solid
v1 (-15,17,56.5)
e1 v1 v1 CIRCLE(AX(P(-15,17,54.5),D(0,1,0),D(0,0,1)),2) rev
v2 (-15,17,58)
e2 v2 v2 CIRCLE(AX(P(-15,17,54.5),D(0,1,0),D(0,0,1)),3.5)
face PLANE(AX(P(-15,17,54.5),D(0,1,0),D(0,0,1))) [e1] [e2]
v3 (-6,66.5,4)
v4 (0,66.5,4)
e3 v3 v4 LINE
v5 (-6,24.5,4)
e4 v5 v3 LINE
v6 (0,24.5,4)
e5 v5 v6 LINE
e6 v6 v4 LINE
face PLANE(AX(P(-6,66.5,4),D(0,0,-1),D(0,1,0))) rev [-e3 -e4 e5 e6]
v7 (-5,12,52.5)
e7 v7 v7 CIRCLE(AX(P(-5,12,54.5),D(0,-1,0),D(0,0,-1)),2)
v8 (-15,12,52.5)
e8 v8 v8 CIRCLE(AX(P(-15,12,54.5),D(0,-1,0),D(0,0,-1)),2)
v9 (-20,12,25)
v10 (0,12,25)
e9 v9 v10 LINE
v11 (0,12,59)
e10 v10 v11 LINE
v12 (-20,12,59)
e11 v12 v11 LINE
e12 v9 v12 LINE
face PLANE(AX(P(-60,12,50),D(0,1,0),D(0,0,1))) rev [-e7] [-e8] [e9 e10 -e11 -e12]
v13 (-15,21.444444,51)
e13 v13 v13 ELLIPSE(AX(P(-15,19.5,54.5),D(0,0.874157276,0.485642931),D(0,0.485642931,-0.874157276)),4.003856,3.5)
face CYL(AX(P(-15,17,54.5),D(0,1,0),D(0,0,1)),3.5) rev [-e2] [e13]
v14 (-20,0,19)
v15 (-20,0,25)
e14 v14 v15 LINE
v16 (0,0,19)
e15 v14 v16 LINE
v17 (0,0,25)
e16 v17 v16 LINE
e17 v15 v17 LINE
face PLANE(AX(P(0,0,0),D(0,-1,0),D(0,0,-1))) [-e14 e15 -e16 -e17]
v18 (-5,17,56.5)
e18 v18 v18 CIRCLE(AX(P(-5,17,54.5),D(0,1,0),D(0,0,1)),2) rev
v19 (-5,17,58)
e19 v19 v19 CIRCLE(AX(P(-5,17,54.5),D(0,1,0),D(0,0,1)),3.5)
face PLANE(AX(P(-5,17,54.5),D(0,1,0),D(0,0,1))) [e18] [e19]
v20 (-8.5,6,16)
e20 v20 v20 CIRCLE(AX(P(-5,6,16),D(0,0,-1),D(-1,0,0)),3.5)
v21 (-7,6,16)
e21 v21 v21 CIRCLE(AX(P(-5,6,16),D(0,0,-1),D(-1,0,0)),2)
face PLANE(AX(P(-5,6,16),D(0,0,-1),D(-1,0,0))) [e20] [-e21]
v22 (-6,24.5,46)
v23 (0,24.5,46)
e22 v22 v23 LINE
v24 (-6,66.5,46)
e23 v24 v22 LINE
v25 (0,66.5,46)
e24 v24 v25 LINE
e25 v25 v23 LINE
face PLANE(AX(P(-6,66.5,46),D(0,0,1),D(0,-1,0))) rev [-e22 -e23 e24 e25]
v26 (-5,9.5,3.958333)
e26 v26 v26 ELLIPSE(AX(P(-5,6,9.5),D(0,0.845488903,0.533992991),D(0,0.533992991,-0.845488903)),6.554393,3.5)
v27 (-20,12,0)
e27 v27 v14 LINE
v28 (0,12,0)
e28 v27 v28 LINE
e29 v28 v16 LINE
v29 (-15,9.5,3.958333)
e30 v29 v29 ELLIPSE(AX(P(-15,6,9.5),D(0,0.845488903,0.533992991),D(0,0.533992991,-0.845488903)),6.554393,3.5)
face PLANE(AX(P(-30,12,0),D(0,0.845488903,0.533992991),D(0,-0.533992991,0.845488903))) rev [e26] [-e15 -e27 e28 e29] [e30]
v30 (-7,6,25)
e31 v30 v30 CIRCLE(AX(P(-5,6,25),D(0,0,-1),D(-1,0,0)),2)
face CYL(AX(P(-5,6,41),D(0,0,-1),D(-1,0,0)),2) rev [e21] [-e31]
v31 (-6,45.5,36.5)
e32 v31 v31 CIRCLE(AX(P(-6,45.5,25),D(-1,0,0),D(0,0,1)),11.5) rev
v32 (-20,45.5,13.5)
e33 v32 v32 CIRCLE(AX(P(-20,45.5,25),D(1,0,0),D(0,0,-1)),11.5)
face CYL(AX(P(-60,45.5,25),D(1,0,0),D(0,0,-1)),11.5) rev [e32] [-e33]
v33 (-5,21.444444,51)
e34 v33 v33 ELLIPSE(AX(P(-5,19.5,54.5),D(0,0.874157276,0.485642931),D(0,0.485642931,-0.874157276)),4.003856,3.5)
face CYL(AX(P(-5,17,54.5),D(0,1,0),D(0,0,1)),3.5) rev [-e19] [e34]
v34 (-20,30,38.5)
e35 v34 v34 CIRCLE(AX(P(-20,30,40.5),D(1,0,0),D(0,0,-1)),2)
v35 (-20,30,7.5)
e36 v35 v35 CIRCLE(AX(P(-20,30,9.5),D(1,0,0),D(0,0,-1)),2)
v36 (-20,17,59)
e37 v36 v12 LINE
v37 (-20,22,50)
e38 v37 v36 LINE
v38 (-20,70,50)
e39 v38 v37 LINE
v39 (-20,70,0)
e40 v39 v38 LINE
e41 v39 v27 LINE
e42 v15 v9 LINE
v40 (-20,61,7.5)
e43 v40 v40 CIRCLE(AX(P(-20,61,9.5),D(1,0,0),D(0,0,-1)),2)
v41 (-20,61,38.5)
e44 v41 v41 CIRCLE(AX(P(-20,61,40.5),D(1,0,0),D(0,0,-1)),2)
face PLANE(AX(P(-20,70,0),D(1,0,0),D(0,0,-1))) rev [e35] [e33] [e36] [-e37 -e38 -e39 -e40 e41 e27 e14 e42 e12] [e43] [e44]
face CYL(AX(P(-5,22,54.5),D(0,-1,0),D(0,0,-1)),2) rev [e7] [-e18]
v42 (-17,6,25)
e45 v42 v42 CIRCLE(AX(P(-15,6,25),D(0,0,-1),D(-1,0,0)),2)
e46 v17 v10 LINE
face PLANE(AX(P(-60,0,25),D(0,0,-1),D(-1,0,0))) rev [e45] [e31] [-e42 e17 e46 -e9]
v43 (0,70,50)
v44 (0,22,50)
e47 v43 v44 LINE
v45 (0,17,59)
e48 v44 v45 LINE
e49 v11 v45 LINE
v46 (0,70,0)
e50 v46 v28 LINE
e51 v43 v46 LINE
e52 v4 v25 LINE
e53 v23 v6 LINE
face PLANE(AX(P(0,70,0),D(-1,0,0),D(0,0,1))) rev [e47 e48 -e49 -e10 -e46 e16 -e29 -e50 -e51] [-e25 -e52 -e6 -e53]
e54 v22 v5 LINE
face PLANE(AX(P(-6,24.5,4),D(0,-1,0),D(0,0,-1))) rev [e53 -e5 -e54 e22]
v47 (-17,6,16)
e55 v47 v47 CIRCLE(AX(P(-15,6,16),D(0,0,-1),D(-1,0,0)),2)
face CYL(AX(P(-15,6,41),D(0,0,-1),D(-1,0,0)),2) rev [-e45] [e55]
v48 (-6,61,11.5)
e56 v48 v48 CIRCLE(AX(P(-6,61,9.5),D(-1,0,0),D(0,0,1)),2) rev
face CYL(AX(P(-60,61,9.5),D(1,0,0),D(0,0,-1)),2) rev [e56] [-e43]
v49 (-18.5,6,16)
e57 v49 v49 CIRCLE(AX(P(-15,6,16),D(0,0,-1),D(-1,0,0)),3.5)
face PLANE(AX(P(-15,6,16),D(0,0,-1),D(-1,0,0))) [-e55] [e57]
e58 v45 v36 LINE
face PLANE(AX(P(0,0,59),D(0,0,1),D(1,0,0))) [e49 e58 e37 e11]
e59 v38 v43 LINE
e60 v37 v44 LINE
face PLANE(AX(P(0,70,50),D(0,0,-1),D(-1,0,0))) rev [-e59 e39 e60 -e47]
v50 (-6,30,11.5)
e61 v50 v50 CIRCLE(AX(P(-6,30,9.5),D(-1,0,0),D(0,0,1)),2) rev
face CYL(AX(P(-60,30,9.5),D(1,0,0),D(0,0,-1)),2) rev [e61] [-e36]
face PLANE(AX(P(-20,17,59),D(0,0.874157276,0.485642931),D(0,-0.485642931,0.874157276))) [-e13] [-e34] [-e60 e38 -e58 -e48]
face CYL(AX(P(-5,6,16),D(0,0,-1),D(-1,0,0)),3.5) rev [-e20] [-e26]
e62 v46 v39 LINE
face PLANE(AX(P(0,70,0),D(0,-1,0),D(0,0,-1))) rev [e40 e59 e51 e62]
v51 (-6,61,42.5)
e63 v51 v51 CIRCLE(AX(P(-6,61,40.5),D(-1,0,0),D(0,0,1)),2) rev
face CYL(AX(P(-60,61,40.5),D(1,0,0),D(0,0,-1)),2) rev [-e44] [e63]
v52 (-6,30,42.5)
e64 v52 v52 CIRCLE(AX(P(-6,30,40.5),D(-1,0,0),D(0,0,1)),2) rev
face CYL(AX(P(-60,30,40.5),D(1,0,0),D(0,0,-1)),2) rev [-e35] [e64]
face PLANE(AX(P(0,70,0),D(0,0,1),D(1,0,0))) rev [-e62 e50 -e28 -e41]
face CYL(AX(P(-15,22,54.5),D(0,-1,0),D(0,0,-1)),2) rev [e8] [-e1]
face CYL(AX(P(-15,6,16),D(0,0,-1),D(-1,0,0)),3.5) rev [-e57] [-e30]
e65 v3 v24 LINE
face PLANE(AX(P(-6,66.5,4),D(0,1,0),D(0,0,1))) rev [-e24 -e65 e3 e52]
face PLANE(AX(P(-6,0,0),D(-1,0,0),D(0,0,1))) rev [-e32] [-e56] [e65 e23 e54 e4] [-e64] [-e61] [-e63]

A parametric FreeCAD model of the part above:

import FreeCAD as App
import Part
import Sketcher
from FreeCAD import Vector
Q = App.Units.Quantity


def add_polygon(sketch, points):
    """Adds a closed chain of lines whose ends are joined by coincident constraints."""
    first, n = sketch.GeometryCount, len(points)
    for a, b in zip(points, points[1:] + points[:1]):
        sketch.addGeometry(Part.LineSegment(App.Vector(*a, 0), App.Vector(*b, 0)), False)
    for i in range(n):
        sketch.addConstraint(Sketcher.Constraint("Coincident", first + i, 2, first + (i + 1) % n, 1))

doc = App.newDocument("Part")
params = doc.addObject("Spreadsheet::Sheet", "Params")
for row, (alias, value) in enumerate([
    ("sketch1_width", "20 mm"),
    ("sketch1_height", "50 mm"),
    ("pad1_length", "70 mm"),
    ("sketch2_diameter", "4 mm"),
    ("sketch2_diameter2", "23 mm"),
    ("pocket1_length", "60 mm"),
    ("sketch3_width", "12 mm"),
    ("sketch3_height", "25 mm"),
    ("pocket2_length", "60 mm"),
    ("sketch4_diameter", "4 mm"),
    ("pocket3_length", "15 mm"),
    ("sketch5_width", "42 mm"),
    ("pocket4_length", "6 mm"),
    ("sketch6_width", "12 mm"),
    ("sketch6_height", "19 mm"),
    ("pocket5_length", "30 mm"),
    ("sketch7_width", "20 mm"),
    ("sketch7_height", "5 mm"),
    ("pad2_length", "9 mm"),
    ("sketch8_width", "5 mm"),
    ("sketch8_height", "9 mm"),
    ("pad3_length", "20 mm"),
    ("sketch9_diameter", "4 mm"),
    ("pocket6_length", "10 mm"),
    ("sketch10_diameter", "7 mm"),
    ("pocket7_length", "53 mm"),
    ("sketch11_diameter", "7 mm"),
    ("pocket8_length", "16 mm"),
    ("sketch12_diameter", "4 mm"),
    ("pocket9_length", "25 mm"),
], start=1):
    params.set(f"A{row}", alias)
    params.set(f"B{row}", "=" + value)
    params.setAlias(f"B{row}", alias)

body = doc.addObject("PartDesign::Body", "Body")

# Sketch on XZ plane
sketch1 = body.newObject("Sketcher::SketchObject", "Sketch")
sketch1.AttachmentSupport = (doc.getObject("XZ_Plane"), [""])
sketch1.MapMode = "FlatFace"
add_polygon(sketch1, [(-20, 0), (-20, 50), (0, 50), (0, 0)])  # lines 0-3
sketch1.addConstraint(Sketcher.Constraint("Vertical", 0))
sketch1.addConstraint(Sketcher.Constraint("Horizontal", 1))
sketch1.addConstraint(Sketcher.Constraint("Vertical", 2))
sketch1.addConstraint(Sketcher.Constraint("Horizontal", 3))
sketch1.addConstraint(Sketcher.Constraint("Coincident", 2, 2, -1, 1))
sketch1.addConstraint(Sketcher.Constraint("DistanceX", 1, 1, 1, 2, Q("20 mm")))
sketch1.addConstraint(Sketcher.Constraint("DistanceY", 0, 1, 0, 2, Q("50 mm")))
sketch1.setExpression("Constraints[9]", "Params.sketch1_width")
sketch1.setExpression("Constraints[10]", "Params.sketch1_height")
pad1 = body.newObject("PartDesign::Pad", "Pad")
pad1.Profile = sketch1
pad1.setExpression("Length", "Params.pad1_length")
pad1.Reversed = True

# Sketch on YZ plane
sketch2 = body.newObject("Sketcher::SketchObject", "Sketch001")
sketch2.AttachmentSupport = (doc.getObject("YZ_Plane"), [""])
sketch2.MapMode = "FlatFace"
sketch2.addGeometry(Part.Circle(Vector(61, 9.5, 0), Vector(0, 0, 1), 2), False)
sketch2.addGeometry(Part.Circle(Vector(45.5, 25, 0), Vector(0, 0, 1), 11.5), False)
sketch2.addGeometry(Part.Circle(Vector(30, 9.5, 0), Vector(0, 0, 1), 2), False)
sketch2.addGeometry(Part.Circle(Vector(30, 40.5, 0), Vector(0, 0, 1), 2), False)
sketch2.addGeometry(Part.Circle(Vector(61, 40.5, 0), Vector(0, 0, 1), 2), False)
sketch2.addConstraint(Sketcher.Constraint("Equal", 0, 2))
sketch2.addConstraint(Sketcher.Constraint("Equal", 2, 3))
sketch2.addConstraint(Sketcher.Constraint("Equal", 3, 4))
sketch2.addConstraint(Sketcher.Constraint("Horizontal", 0, 3, 2, 3))
sketch2.addConstraint(Sketcher.Constraint("Horizontal", 3, 3, 4, 3))
sketch2.addConstraint(Sketcher.Constraint("Vertical", 2, 3, 3, 3))
sketch2.addConstraint(Sketcher.Constraint("Vertical", 0, 3, 4, 3))
sketch2.addConstraint(Sketcher.Constraint("Diameter", 0, Q("4 mm")))
sketch2.addConstraint(Sketcher.Constraint("Diameter", 1, Q("23 mm")))
sketch2.addConstraint(Sketcher.Constraint("DistanceX", -1, 1, 0, 3, Q("61 mm")))
sketch2.addConstraint(Sketcher.Constraint("DistanceY", -1, 1, 1, 3, Q("25 mm")))
sketch2.addConstraint(Sketcher.Constraint("DistanceX", -1, 1, 2, 3, Q("30 mm")))
sketch2.addConstraint(Sketcher.Constraint("DistanceY", 2, 3, 3, 3, Q("31 mm")))
sketch2.addConstraint(Sketcher.Constraint("DistanceY", -1, 1, 0, 3, Q("9.5 mm")))
sketch2.addConstraint(Sketcher.Constraint("DistanceX", -1, 1, 1, 3, Q("45.5 mm")))
sketch2.setExpression("Constraints[7]", "Params.sketch2_diameter")
sketch2.setExpression("Constraints[8]", "Params.sketch2_diameter2")
pocket1 = body.newObject("PartDesign::Pocket", "Pocket")
pocket1.Profile = sketch2
pocket1.setExpression("Length", "Params.pocket1_length")

# Sketch on YZ plane
sketch3 = body.newObject("Sketcher::SketchObject", "Sketch002")
sketch3.AttachmentSupport = (doc.getObject("YZ_Plane"), [""])
sketch3.MapMode = "FlatFace"
add_polygon(sketch3, [(12, 50), (0, 50), (0, 25), (12, 25)])  # lines 0-3
sketch3.addConstraint(Sketcher.Constraint("Horizontal", 0))
sketch3.addConstraint(Sketcher.Constraint("Vertical", 1))
sketch3.addConstraint(Sketcher.Constraint("Horizontal", 2))
sketch3.addConstraint(Sketcher.Constraint("Vertical", 3))
sketch3.addConstraint(Sketcher.Constraint("PointOnObject", 0, 2, -2))
sketch3.addConstraint(Sketcher.Constraint("DistanceX", 0, 2, 0, 1, Q("12 mm")))
sketch3.addConstraint(Sketcher.Constraint("DistanceY", 1, 2, 1, 1, Q("25 mm")))
sketch3.addConstraint(Sketcher.Constraint("DistanceY", -1, 1, 0, 2, Q("50 mm")))
sketch3.setExpression("Constraints[9]", "Params.sketch3_width")
sketch3.setExpression("Constraints[10]", "Params.sketch3_height")
pocket2 = body.newObject("PartDesign::Pocket", "Pocket001")
pocket2.Profile = sketch3
pocket2.setExpression("Length", "Params.pocket2_length")

# Sketch on XY plane
sketch4 = body.newObject("Sketcher::SketchObject", "Sketch003")
sketch4.AttachmentSupport = (doc.getObject("XY_Plane"), [""])
sketch4.MapMode = "FlatFace"
sketch4.addGeometry(Part.Circle(Vector(-15, 6, 0), Vector(0, 0, 1), 2), False)
sketch4.addGeometry(Part.Circle(Vector(-5, 6, 0), Vector(0, 0, 1), 2), False)
sketch4.addConstraint(Sketcher.Constraint("Equal", 0, 1))
sketch4.addConstraint(Sketcher.Constraint("Horizontal", 0, 3, 1, 3))
sketch4.addConstraint(Sketcher.Constraint("Diameter", 0, Q("4 mm")))
sketch4.addConstraint(Sketcher.Constraint("DistanceX", 0, 3, -1, 1, Q("15 mm")))
sketch4.addConstraint(Sketcher.Constraint("DistanceY", -1, 1, 0, 3, Q("6 mm")))
sketch4.addConstraint(Sketcher.Constraint("DistanceX", 1, 3, -1, 1, Q("5 mm")))
sketch4.setExpression("Constraints[2]", "Params.sketch4_diameter")
pocket3 = body.newObject("PartDesign::Pocket", "Pocket002")
pocket3.Profile = sketch4
pocket3.setExpression("Length", "Params.pocket3_length")
pocket3.Reversed = True

# Sketch on YZ plane
sketch5 = body.newObject("Sketcher::SketchObject", "Sketch004")
sketch5.AttachmentSupport = (doc.getObject("YZ_Plane"), [""])
sketch5.MapMode = "FlatFace"
add_polygon(sketch5, [(66.5, 46), (24.5, 46), (24.5, 4), (66.5, 4)])  # lines 0-3
sketch5.addConstraint(Sketcher.Constraint("Horizontal", 0))
sketch5.addConstraint(Sketcher.Constraint("Vertical", 1))
sketch5.addConstraint(Sketcher.Constraint("Horizontal", 2))
sketch5.addConstraint(Sketcher.Constraint("Vertical", 3))
sketch5.addConstraint(Sketcher.Constraint("Equal", 2, 1))
sketch5.addConstraint(Sketcher.Constraint("DistanceX", 0, 2, 0, 1, Q("42 mm")))
sketch5.addConstraint(Sketcher.Constraint("DistanceY", -1, 1, 0, 2, Q("46 mm")))
sketch5.addConstraint(Sketcher.Constraint("DistanceX", -1, 1, 0, 2, Q("24.5 mm")))
sketch5.setExpression("Constraints[9]", "Params.sketch5_width")
pocket4 = body.newObject("PartDesign::Pocket", "Pocket003")
pocket4.Profile = sketch5
pocket4.setExpression("Length", "Params.pocket4_length")

# Sketch on YZ plane
sketch6 = body.newObject("Sketcher::SketchObject", "Sketch005")
sketch6.AttachmentSupport = (doc.getObject("YZ_Plane"), [""])
sketch6.MapMode = "FlatFace"
add_polygon(sketch6, [(0, 19), (0, 0), (12, 0)])  # lines 0-2
sketch6.addConstraint(Sketcher.Constraint("Vertical", 0))
sketch6.addConstraint(Sketcher.Constraint("Horizontal", 1))
sketch6.addConstraint(Sketcher.Constraint("Coincident", 0, 2, -1, 1))
sketch6.addConstraint(Sketcher.Constraint("DistanceX", 1, 1, 1, 2, Q("12 mm")))
sketch6.addConstraint(Sketcher.Constraint("DistanceY", 0, 2, 0, 1, Q("19 mm")))
sketch6.setExpression("Constraints[6]", "Params.sketch6_width")
sketch6.setExpression("Constraints[7]", "Params.sketch6_height")
pocket5 = body.newObject("PartDesign::Pocket", "Pocket004")
pocket5.Profile = sketch6
pocket5.setExpression("Length", "Params.pocket5_length")

# Sketch on XY plane
sketch7 = body.newObject("Sketcher::SketchObject", "Sketch006")
sketch7.AttachmentSupport = (doc.getObject("XY_Plane"), [""])
sketch7.MapMode = "FlatFace"
sketch7.AttachmentOffset = App.Placement(Vector(0, 0, 50), App.Rotation())
add_polygon(sketch7, [(-20, 17), (-20, 12), (0, 12), (0, 17)])  # lines 0-3
sketch7.addConstraint(Sketcher.Constraint("Vertical", 0))
sketch7.addConstraint(Sketcher.Constraint("Horizontal", 1))
sketch7.addConstraint(Sketcher.Constraint("Vertical", 2))
sketch7.addConstraint(Sketcher.Constraint("Horizontal", 3))
sketch7.addConstraint(Sketcher.Constraint("PointOnObject", 1, 2, -2))
sketch7.addConstraint(Sketcher.Constraint("DistanceX", 1, 1, 1, 2, Q("20 mm")))
sketch7.addConstraint(Sketcher.Constraint("DistanceY", 0, 2, 0, 1, Q("5 mm")))
sketch7.addConstraint(Sketcher.Constraint("DistanceY", -1, 1, 0, 2, Q("12 mm")))
sketch7.setExpression("Constraints[9]", "Params.sketch7_width")
sketch7.setExpression("Constraints[10]", "Params.sketch7_height")
pad2 = body.newObject("PartDesign::Pad", "Pad001")
pad2.Profile = sketch7
pad2.setExpression("Length", "Params.pad2_length")

# Sketch on YZ plane
sketch8 = body.newObject("Sketcher::SketchObject", "Sketch007")
sketch8.AttachmentSupport = (doc.getObject("YZ_Plane"), [""])
sketch8.MapMode = "FlatFace"
add_polygon(sketch8, [(17, 59), (17, 50), (22, 50)])  # lines 0-2
sketch8.addConstraint(Sketcher.Constraint("Vertical", 0))
sketch8.addConstraint(Sketcher.Constraint("Horizontal", 1))
sketch8.addConstraint(Sketcher.Constraint("DistanceX", 1, 1, 1, 2, Q("5 mm")))
sketch8.addConstraint(Sketcher.Constraint("DistanceY", 0, 2, 0, 1, Q("9 mm")))
sketch8.addConstraint(Sketcher.Constraint("DistanceX", -1, 1, 0, 2, Q("17 mm")))
sketch8.addConstraint(Sketcher.Constraint("DistanceY", -1, 1, 0, 2, Q("50 mm")))
sketch8.setExpression("Constraints[5]", "Params.sketch8_width")
sketch8.setExpression("Constraints[6]", "Params.sketch8_height")
pad3 = body.newObject("PartDesign::Pad", "Pad002")
pad3.Profile = sketch8
pad3.setExpression("Length", "Params.pad3_length")
pad3.Reversed = True

# Sketch on XZ plane
sketch9 = body.newObject("Sketcher::SketchObject", "Sketch008")
sketch9.AttachmentSupport = (doc.getObject("XZ_Plane"), [""])
sketch9.MapMode = "FlatFace"
sketch9.AttachmentOffset = App.Placement(Vector(0, 0, -12), App.Rotation())
sketch9.addGeometry(Part.Circle(Vector(-5, 54.5, 0), Vector(0, 0, 1), 2), False)
sketch9.addGeometry(Part.Circle(Vector(-15, 54.5, 0), Vector(0, 0, 1), 2), False)
sketch9.addConstraint(Sketcher.Constraint("Equal", 0, 1))
sketch9.addConstraint(Sketcher.Constraint("Horizontal", 0, 3, 1, 3))
sketch9.addConstraint(Sketcher.Constraint("Diameter", 0, Q("4 mm")))
sketch9.addConstraint(Sketcher.Constraint("DistanceX", 0, 3, -1, 1, Q("5 mm")))
sketch9.addConstraint(Sketcher.Constraint("DistanceX", 1, 3, -1, 1, Q("15 mm")))
sketch9.addConstraint(Sketcher.Constraint("DistanceY", -1, 1, 0, 3, Q("54.5 mm")))
sketch9.setExpression("Constraints[2]", "Params.sketch9_diameter")
pocket6 = body.newObject("PartDesign::Pocket", "Pocket005")
pocket6.Profile = sketch9
pocket6.setExpression("Length", "Params.pocket6_length")

# Sketch on XZ plane
sketch10 = body.newObject("Sketcher::SketchObject", "Sketch009")
sketch10.AttachmentSupport = (doc.getObject("XZ_Plane"), [""])
sketch10.MapMode = "FlatFace"
sketch10.AttachmentOffset = App.Placement(Vector(0, 0, -70), App.Rotation())
sketch10.addGeometry(Part.Circle(Vector(-15, 54.5, 0), Vector(0, 0, 1), 3.5), False)
sketch10.addGeometry(Part.Circle(Vector(-5, 54.5, 0), Vector(0, 0, 1), 3.5), False)
sketch10.addConstraint(Sketcher.Constraint("Equal", 0, 1))
sketch10.addConstraint(Sketcher.Constraint("Horizontal", 0, 3, 1, 3))
sketch10.addConstraint(Sketcher.Constraint("Diameter", 0, Q("7 mm")))
sketch10.addConstraint(Sketcher.Constraint("DistanceX", 0, 3, -1, 1, Q("15 mm")))
sketch10.addConstraint(Sketcher.Constraint("DistanceX", 1, 3, -1, 1, Q("5 mm")))
sketch10.addConstraint(Sketcher.Constraint("DistanceY", -1, 1, 0, 3, Q("54.5 mm")))
sketch10.setExpression("Constraints[2]", "Params.sketch10_diameter")
pocket7 = body.newObject("PartDesign::Pocket", "Pocket006")
pocket7.Profile = sketch10
pocket7.setExpression("Length", "Params.pocket7_length")
pocket7.Reversed = True

# Sketch on XY plane
sketch11 = body.newObject("Sketcher::SketchObject", "Sketch010")
sketch11.AttachmentSupport = (doc.getObject("XY_Plane"), [""])
sketch11.MapMode = "FlatFace"
sketch11.addGeometry(Part.Circle(Vector(-15, 6, 0), Vector(0, 0, 1), 3.5), False)
sketch11.addGeometry(Part.Circle(Vector(-5, 6, 0), Vector(0, 0, 1), 3.5), False)
sketch11.addConstraint(Sketcher.Constraint("Equal", 0, 1))
sketch11.addConstraint(Sketcher.Constraint("Horizontal", 0, 3, 1, 3))
sketch11.addConstraint(Sketcher.Constraint("Diameter", 0, Q("7 mm")))
sketch11.addConstraint(Sketcher.Constraint("DistanceX", 0, 3, -1, 1, Q("15 mm")))
sketch11.addConstraint(Sketcher.Constraint("DistanceY", -1, 1, 0, 3, Q("6 mm")))
sketch11.addConstraint(Sketcher.Constraint("DistanceX", 1, 3, -1, 1, Q("5 mm")))
sketch11.setExpression("Constraints[2]", "Params.sketch11_diameter")
pocket8 = body.newObject("PartDesign::Pocket", "Pocket007")
pocket8.Profile = sketch11
pocket8.setExpression("Length", "Params.pocket8_length")
pocket8.Reversed = True

# Sketch on XY plane
sketch12 = body.newObject("Sketcher::SketchObject", "Sketch011")
sketch12.AttachmentSupport = (doc.getObject("XY_Plane"), [""])
sketch12.MapMode = "FlatFace"
sketch12.AttachmentOffset = App.Placement(Vector(0, 0, 16), App.Rotation())
sketch12.addGeometry(Part.Circle(Vector(-5, 6, 0), Vector(0, 0, 1), 2), False)
sketch12.addGeometry(Part.Circle(Vector(-15, 6, 0), Vector(0, 0, 1), 2), False)
sketch12.addConstraint(Sketcher.Constraint("Equal", 0, 1))
sketch12.addConstraint(Sketcher.Constraint("Horizontal", 0, 3, 1, 3))
sketch12.addConstraint(Sketcher.Constraint("Diameter", 0, Q("4 mm")))
sketch12.addConstraint(Sketcher.Constraint("DistanceX", 0, 3, -1, 1, Q("5 mm")))
sketch12.addConstraint(Sketcher.Constraint("DistanceY", -1, 1, 0, 3, Q("6 mm")))
sketch12.addConstraint(Sketcher.Constraint("DistanceX", 1, 3, -1, 1, Q("15 mm")))
sketch12.setExpression("Constraints[2]", "Params.sketch12_diameter")
pocket9 = body.newObject("PartDesign::Pocket", "Pocket008")
pocket9.Profile = sketch12
pocket9.setExpression("Length", "Params.pocket9_length")
pocket9.Reversed = True

doc.recompute()
